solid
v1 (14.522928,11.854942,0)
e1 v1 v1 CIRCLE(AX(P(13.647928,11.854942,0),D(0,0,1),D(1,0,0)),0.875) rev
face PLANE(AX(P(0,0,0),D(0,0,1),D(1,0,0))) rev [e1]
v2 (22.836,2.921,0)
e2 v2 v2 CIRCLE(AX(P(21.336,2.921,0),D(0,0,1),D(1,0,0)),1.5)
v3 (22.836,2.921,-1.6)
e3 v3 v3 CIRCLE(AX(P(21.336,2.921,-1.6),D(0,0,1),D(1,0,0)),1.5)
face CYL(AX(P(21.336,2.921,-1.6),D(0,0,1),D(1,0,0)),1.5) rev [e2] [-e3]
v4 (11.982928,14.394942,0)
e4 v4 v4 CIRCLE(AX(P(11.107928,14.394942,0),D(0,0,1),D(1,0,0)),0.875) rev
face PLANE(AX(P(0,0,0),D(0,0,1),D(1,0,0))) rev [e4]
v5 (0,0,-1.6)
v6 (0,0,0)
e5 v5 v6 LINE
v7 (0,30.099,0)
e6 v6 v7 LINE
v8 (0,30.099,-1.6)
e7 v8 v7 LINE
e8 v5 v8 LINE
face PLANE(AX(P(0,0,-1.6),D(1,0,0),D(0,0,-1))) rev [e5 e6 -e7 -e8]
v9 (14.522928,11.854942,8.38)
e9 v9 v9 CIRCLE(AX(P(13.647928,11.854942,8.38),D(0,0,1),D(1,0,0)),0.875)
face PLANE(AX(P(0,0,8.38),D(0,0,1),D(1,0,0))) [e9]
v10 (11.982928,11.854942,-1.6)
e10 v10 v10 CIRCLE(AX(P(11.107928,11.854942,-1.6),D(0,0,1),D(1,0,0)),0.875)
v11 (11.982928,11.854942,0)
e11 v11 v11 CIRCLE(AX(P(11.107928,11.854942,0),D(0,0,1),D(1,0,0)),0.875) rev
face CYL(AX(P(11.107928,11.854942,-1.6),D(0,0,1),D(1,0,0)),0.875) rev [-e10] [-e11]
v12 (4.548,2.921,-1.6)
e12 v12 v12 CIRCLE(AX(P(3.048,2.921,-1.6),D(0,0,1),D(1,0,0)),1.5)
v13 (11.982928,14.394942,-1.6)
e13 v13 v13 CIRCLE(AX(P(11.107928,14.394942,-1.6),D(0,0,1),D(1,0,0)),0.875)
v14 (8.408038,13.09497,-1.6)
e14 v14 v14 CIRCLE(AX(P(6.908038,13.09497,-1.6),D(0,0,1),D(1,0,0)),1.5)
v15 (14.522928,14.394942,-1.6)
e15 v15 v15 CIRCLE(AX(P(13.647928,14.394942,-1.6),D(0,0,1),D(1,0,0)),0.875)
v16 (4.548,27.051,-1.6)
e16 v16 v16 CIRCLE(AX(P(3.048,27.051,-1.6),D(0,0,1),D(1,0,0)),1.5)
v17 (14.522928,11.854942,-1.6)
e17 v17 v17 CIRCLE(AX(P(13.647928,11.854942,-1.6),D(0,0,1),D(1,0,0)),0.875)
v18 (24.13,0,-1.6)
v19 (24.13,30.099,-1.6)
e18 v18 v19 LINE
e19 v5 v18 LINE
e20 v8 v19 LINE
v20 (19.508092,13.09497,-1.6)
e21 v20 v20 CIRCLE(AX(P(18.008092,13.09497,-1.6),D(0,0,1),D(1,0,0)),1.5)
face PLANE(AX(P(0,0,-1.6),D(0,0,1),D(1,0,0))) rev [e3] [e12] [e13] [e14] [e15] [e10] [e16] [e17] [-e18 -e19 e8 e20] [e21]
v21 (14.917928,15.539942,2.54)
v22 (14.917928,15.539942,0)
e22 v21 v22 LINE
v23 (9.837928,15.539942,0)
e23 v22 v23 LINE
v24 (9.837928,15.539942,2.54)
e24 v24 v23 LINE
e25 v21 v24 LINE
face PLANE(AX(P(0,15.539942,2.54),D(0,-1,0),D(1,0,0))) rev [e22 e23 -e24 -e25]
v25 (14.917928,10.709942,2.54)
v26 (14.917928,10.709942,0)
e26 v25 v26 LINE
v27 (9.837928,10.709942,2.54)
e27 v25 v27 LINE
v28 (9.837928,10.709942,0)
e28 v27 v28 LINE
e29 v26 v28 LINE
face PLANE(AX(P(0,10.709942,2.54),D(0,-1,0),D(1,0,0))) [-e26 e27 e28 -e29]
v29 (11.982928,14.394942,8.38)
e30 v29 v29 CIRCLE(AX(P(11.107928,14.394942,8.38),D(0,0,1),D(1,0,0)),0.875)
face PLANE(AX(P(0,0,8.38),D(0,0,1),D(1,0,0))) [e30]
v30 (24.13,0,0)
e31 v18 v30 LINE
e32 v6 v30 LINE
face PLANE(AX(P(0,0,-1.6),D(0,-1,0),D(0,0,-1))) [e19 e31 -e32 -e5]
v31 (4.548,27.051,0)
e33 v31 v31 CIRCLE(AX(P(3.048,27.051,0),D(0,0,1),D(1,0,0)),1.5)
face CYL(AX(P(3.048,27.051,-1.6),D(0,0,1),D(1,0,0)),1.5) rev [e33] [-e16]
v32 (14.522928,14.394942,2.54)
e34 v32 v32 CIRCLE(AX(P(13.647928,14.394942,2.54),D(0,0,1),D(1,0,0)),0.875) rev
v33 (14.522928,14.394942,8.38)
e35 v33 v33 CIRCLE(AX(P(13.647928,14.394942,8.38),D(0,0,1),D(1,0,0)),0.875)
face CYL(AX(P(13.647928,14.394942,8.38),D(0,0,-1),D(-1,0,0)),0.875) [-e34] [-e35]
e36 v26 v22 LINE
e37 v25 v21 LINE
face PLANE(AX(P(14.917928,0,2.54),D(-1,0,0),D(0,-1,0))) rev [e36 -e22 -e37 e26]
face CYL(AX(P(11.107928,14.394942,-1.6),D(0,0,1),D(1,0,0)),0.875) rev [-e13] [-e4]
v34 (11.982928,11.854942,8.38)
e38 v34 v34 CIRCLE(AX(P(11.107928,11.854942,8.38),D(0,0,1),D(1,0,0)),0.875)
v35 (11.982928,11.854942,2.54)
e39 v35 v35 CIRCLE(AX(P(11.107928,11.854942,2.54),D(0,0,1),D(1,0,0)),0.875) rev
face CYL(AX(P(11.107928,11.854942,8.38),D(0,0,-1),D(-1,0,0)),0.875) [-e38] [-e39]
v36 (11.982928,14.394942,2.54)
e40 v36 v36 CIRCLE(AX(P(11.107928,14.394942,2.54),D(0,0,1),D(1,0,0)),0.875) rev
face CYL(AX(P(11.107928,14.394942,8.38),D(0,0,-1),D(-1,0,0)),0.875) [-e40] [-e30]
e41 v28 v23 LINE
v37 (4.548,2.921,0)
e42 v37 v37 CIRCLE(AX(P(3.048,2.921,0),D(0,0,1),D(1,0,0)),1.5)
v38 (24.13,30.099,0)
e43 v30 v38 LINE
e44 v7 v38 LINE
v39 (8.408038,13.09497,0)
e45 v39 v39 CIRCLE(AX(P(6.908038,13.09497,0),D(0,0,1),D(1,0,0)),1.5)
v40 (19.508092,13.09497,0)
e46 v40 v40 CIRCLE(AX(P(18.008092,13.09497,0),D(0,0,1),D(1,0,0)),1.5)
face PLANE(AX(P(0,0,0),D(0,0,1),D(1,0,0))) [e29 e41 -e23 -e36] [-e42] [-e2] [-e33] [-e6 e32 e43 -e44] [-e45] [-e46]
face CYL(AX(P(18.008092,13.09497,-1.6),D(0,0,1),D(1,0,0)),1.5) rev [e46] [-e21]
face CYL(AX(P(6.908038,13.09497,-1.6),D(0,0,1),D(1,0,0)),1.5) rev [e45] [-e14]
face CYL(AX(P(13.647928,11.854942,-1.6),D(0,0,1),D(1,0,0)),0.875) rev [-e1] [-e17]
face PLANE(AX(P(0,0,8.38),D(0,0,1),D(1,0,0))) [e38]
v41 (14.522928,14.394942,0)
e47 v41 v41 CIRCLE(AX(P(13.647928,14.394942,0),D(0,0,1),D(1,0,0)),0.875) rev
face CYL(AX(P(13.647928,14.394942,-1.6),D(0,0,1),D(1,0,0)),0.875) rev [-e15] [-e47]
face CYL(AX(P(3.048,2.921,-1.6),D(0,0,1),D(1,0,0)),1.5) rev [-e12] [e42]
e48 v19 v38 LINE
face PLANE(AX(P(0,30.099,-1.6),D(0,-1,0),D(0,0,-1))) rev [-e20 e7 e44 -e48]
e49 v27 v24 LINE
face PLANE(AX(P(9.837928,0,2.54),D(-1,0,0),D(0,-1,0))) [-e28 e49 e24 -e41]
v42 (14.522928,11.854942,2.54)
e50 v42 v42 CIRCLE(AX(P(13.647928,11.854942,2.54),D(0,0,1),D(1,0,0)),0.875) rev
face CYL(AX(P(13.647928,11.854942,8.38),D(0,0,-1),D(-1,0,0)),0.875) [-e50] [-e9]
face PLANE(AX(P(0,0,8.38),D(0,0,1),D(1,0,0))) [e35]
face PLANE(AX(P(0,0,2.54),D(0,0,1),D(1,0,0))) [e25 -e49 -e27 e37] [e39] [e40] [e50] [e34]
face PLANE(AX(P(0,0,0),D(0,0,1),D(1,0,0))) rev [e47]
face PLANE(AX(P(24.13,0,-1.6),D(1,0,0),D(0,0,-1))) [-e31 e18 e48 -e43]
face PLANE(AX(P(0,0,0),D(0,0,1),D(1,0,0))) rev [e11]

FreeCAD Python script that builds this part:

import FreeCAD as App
import Part
import Sketcher

V = App.Vector
Q = App.Units.Quantity


def add_polygon(sketch, points):
    """Adds a closed chain of lines whose ends are joined by coincident constraints."""
    first, n = sketch.GeometryCount, len(points)
    for a, b in zip(points, points[1:] + points[:1]):
        sketch.addGeometry(Part.LineSegment(App.Vector(*a, 0), App.Vector(*b, 0)), False)
    for i in range(n):
        sketch.addConstraint(Sketcher.Constraint("Coincident", first + i, 2, first + (i + 1) % n, 1))

doc = App.newDocument("Part")
body = doc.addObject("PartDesign::Body", "Body")

sketch1 = body.newObject("Sketcher::SketchObject", "Sketch")
sketch1.AttachmentSupport = (doc.getObject("XY_Plane"), [""])
sketch1.MapMode = "FlatFace"
add_polygon(sketch1, [(0, 30.1), (0, 0), (24.1, 0), (24.1, 30.1)])
sketch1.addGeometry(Part.Circle(V(3, 2.9, 0), V(0, 0, 1), 1.5), False)
sketch1.addGeometry(Part.Circle(V(6.9, 13.1, 0), V(0, 0, 1), 1.5), False)
sketch1.addGeometry(Part.Circle(V(11.1, 11.9, 0), V(0, 0, 1), 0.9), False)
sketch1.addGeometry(Part.Circle(V(11.1, 14.4, 0), V(0, 0, 1), 0.9), False)
sketch1.addGeometry(Part.Circle(V(21.3, 2.9, 0), V(0, 0, 1), 1.5), False)
sketch1.addGeometry(Part.Circle(V(13.6, 11.9, 0), V(0, 0, 1), 0.9), False)
sketch1.addGeometry(Part.Circle(V(13.6, 14.4, 0), V(0, 0, 1), 0.9), False)
sketch1.addGeometry(Part.Circle(V(18, 13.1, 0), V(0, 0, 1), 1.5), False)
sketch1.addGeometry(Part.Circle(V(3, 27.1, 0), V(0, 0, 1), 1.5), False)
sketch1.addConstraint(Sketcher.Constraint("Vertical", 0))
sketch1.addConstraint(Sketcher.Constraint("Horizontal", 1))
sketch1.addConstraint(Sketcher.Constraint("Vertical", 2))
sketch1.addConstraint(Sketcher.Constraint("Horizontal", 3))
sketch1.addConstraint(Sketcher.Constraint("Coincident", 0, 2, -1, 1))
sketch1.addConstraint(Sketcher.Constraint("Equal", 4, 5))
sketch1.addConstraint(Sketcher.Constraint("Equal", 6, 7))
sketch1.addConstraint(Sketcher.Constraint("Equal", 5, 8))
sketch1.addConstraint(Sketcher.Constraint("Equal", 7, 9))
sketch1.addConstraint(Sketcher.Constraint("Equal", 9, 10))
sketch1.addConstraint(Sketcher.Constraint("Equal", 8, 11))
sketch1.addConstraint(Sketcher.Constraint("Equal", 11, 12))
sketch1.addConstraint(Sketcher.Constraint("Horizontal", 4, 3, 8, 3))
sketch1.addConstraint(Sketcher.Constraint("Horizontal", 6, 3, 9, 3))
sketch1.addConstraint(Sketcher.Constraint("Horizontal", 7, 3, 10, 3))
sketch1.addConstraint(Sketcher.Constraint("Horizontal", 5, 3, 11, 3))
sketch1.addConstraint(Sketcher.Constraint("Vertical", 6, 3, 7, 3))
sketch1.addConstraint(Sketcher.Constraint("Vertical", 9, 3, 10, 3))
sketch1.addConstraint(Sketcher.Constraint("Vertical", 4, 3, 12, 3))
sketch1.addConstraint(Sketcher.Constraint("DistanceX", 1, 1, 1, 2, Q("0.95 in")))
sketch1.addConstraint(Sketcher.Constraint("DistanceY", 6, 3, 7, 3, Q("0.1 in")))
sketch1.addConstraint(Sketcher.Constraint("DistanceX", 6, 3, 9, 3, Q("0.1 in")))
sketch1.addConstraint(Sketcher.Constraint("Diameter", 4, Q("3 mm")))
sketch1.addConstraint(Sketcher.Constraint("Diameter", 6, Q("1.75 mm")))
sketch1.addConstraint(Sketcher.Constraint("DistanceY", 0, 2, 0, 1, Q("1.185 in")))
sketch1.addConstraint(Sketcher.Constraint("DistanceX", -1, 1, 4, 3, Q("0.12 in")))
sketch1.addConstraint(Sketcher.Constraint("DistanceX", -1, 1, 8, 3, Q("0.84 in")))
sketch1.addConstraint(Sketcher.Constraint("DistanceY", 12, 3, 2, 2, Q("0.12 in")))
sketch1.addConstraint(Sketcher.Constraint("DistanceY", -1, 1, 4, 3, Q("0.115 in")))
sketch1.addConstraint(Sketcher.Constraint("DistanceX", -1, 1, 5, 3, Q("6.908038 mm")))
sketch1.addConstraint(Sketcher.Constraint("DistanceY", -1, 1, 5, 3, Q("13.09497 mm")))
sketch1.addConstraint(Sketcher.Constraint("DistanceX", 5, 3, 6, 3, Q("4.19989 mm")))
sketch1.addConstraint(Sketcher.Constraint("DistanceY", 6, 3, 5, 3, Q("1.240028 mm")))
sketch1.addConstraint(Sketcher.Constraint("DistanceX", -1, 1, 11, 3, Q("18.008092 mm")))
pad1 = body.newObject("PartDesign::Pad", "Pad")
pad1.Profile = sketch1
pad1.Length = 1.6
pad1.Reversed = True

sketch2 = body.newObject("Sketcher::SketchObject", "Sketch001")
sketch2.AttachmentSupport = (doc.getObject("XY_Plane"), [""])
sketch2.MapMode = "FlatFace"
add_polygon(sketch2, [(9.8, 15.5), (9.8, 10.7), (14.9, 10.7), (14.9, 15.5)])
sketch2.addConstraint(Sketcher.Constraint("Vertical", 0))
sketch2.addConstraint(Sketcher.Constraint("Horizontal", 1))
sketch2.addConstraint(Sketcher.Constraint("Vertical", 2))
sketch2.addConstraint(Sketcher.Constraint("Horizontal", 3))
sketch2.addConstraint(Sketcher.Constraint("DistanceX", 1, 1, 1, 2, Q("0.2 in")))
sketch2.addConstraint(Sketcher.Constraint("DistanceY", 0, 2, 0, 1, Q("4.83 mm")))
sketch2.addConstraint(Sketcher.Constraint("DistanceX", -1, 1, 0, 2, Q("9.837928 mm")))
sketch2.addConstraint(Sketcher.Constraint("DistanceY", -1, 1, 0, 2, Q("10.709942 mm")))
pad2 = body.newObject("PartDesign::Pad", "Pad001")
pad2.Profile = sketch2
pad2.Length = Q("0.1 in")

sketch3 = body.newObject("Sketcher::SketchObject", "Sketch002")
sketch3.AttachmentSupport = (doc.getObject("XY_Plane"), [""])
sketch3.MapMode = "FlatFace"
sketch3.addGeometry(Part.Circle(V(13.6, 14.4, 0), V(0, 0, 1), 0.9), False)
sketch3.addGeometry(Part.Circle(V(11.1, 14.4, 0), V(0, 0, 1), 0.9), False)
sketch3.addGeometry(Part.Circle(V(11.1, 11.9, 0), V(0, 0, 1), 0.9), False)
sketch3.addGeometry(Part.Circle(V(13.6, 11.9, 0), V(0, 0, 1), 0.9), False)
sketch3.addConstraint(Sketcher.Constraint("Equal", 0, 1))
sketch3.addConstraint(Sketcher.Constraint("Equal", 1, 2))
sketch3.addConstraint(Sketcher.Constraint("Equal", 2, 3))
sketch3.addConstraint(Sketcher.Constraint("Horizontal", 0, 3, 1, 3))
sketch3.addConstraint(Sketcher.Constraint("Horizontal", 2, 3, 3, 3))
sketch3.addConstraint(Sketcher.Constraint("Vertical", 1, 3, 2, 3))
sketch3.addConstraint(Sketcher.Constraint("Vertical", 0, 3, 3, 3))
sketch3.addConstraint(Sketcher.Constraint("DistanceX", 1, 3, 0, 3, Q("0.1 in")))
sketch3.addConstraint(Sketcher.Constraint("DistanceY", 2, 3, 1, 3, Q("0.1 in")))
sketch3.addConstraint(Sketcher.Constraint("Diameter", 0, Q("1.75 mm")))
sketch3.addConstraint(Sketcher.Constraint("DistanceX", -1, 1, 0, 3, Q("13.647928 mm")))
sketch3.addConstraint(Sketcher.Constraint("DistanceY", -1, 1, 0, 3, Q("14.394942 mm")))
pad3 = body.newObject("PartDesign::Pad", "Pad002")
pad3.Profile = sketch3
pad3.Length = 8.38

doc.recompute()
